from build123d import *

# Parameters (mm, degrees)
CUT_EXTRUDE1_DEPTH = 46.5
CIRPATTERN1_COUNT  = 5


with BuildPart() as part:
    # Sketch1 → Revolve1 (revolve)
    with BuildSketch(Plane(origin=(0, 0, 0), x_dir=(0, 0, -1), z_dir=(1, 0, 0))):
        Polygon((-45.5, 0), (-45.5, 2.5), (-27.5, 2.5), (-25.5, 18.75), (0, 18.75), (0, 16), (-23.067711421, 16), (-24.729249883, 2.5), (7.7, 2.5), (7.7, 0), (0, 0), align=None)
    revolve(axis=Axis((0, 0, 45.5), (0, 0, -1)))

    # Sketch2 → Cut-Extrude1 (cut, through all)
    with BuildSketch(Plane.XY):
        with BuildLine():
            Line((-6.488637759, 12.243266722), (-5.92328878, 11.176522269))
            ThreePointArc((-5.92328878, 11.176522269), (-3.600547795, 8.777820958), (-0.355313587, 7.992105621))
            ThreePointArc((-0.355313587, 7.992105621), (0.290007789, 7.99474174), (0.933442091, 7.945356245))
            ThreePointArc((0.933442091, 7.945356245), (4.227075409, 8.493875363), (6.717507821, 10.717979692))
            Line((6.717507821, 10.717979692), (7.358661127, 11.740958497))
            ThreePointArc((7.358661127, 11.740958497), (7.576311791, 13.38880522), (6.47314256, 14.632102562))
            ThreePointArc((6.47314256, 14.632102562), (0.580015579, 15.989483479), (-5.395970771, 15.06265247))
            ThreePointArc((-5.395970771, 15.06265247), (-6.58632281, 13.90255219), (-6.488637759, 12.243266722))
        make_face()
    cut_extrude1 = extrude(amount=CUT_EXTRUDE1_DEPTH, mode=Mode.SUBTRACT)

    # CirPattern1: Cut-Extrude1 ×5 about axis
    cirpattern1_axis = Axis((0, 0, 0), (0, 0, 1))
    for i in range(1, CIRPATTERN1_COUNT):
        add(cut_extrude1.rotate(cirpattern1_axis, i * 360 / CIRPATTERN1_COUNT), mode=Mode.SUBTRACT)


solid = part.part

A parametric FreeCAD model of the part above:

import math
import FreeCAD as App
import Part
import Sketcher

V = App.Vector

doc = App.newDocument("Part")
body = doc.addObject("PartDesign::Body", "Body")

sketch1 = body.newObject("Sketcher::SketchObject", "Sketch")
sketch1.AttachmentSupport = (doc.getObject("YZ_Plane"), [""])
sketch1.MapMode = "FlatFace"
sketch1.addGeometry(Part.LineSegment(V(2.5, 45.5, 0), V(0, 45.5, 0)), False)
sketch1.addGeometry(Part.LineSegment(V(0, 45.5, 0), V(0, -7.7, 0)), False)
sketch1.addGeometry(Part.LineSegment(V(0, -7.7, 0), V(2.5, -7.7, 0)), False)
sketch1.addGeometry(Part.LineSegment(V(2.5, -7.7, 0), V(2.5, 24.7, 0)), False)
sketch1.addGeometry(Part.LineSegment(V(2.5, 24.7, 0), V(16, 23.1, 0)), False)
sketch1.addGeometry(Part.LineSegment(V(16, 23.1, 0), V(16, 0, 0)), False)
sketch1.addGeometry(Part.LineSegment(V(16, 0, 0), V(18.8, 0, 0)), False)
sketch1.addGeometry(Part.LineSegment(V(18.8, 0, 0), V(18.8, 25.5, 0)), False)
sketch1.addGeometry(Part.LineSegment(V(18.8, 25.5, 0), V(2.5, 27.5, 0)), False)
sketch1.addGeometry(Part.LineSegment(V(2.5, 27.5, 0), V(2.5, 45.5, 0)), False)
sketch1.addConstraint(Sketcher.Constraint("Coincident", 0, 2, 1, 1))
sketch1.addConstraint(Sketcher.Constraint("Coincident", 1, 2, 2, 1))
sketch1.addConstraint(Sketcher.Constraint("Coincident", 2, 2, 3, 1))
sketch1.addConstraint(Sketcher.Constraint("Coincident", 3, 2, 4, 1))
sketch1.addConstraint(Sketcher.Constraint("Coincident", 4, 2, 5, 1))
sketch1.addConstraint(Sketcher.Constraint("Coincident", 5, 2, 6, 1))
sketch1.addConstraint(Sketcher.Constraint("Coincident", 6, 2, 7, 1))
sketch1.addConstraint(Sketcher.Constraint("Coincident", 7, 2, 8, 1))
sketch1.addConstraint(Sketcher.Constraint("Coincident", 8, 2, 9, 1))
sketch1.addConstraint(Sketcher.Constraint("Coincident", 9, 2, 0, 1))
sketch1.addConstraint(Sketcher.Constraint("Horizontal", 0))
sketch1.addConstraint(Sketcher.Constraint("Vertical", 1))
sketch1.addConstraint(Sketcher.Constraint("Horizontal", 2))
sketch1.addConstraint(Sketcher.Constraint("Vertical", 3))
sketch1.addConstraint(Sketcher.Constraint("Vertical", 5))
sketch1.addConstraint(Sketcher.Constraint("Horizontal", 6))
sketch1.addConstraint(Sketcher.Constraint("Vertical", 7))
sketch1.addConstraint(Sketcher.Constraint("Vertical", 9))
sketch1.addConstraint(Sketcher.Constraint("PointOnObject", 0, 2, -2))
sketch1.addConstraint(Sketcher.Constraint("PointOnObject", 5, 2, -1))
sketch1.addConstraint(Sketcher.Constraint("Parallel", 4, 8))
sketch1.addConstraint(Sketcher.Constraint("Vertical", 3, 2, 8, 2))
sketch1.addConstraint(Sketcher.Constraint("DistanceY", 9, 1, 9, 2, 18.0))
sketch1.addConstraint(Sketcher.Constraint("DistanceX", 0, 2, 0, 1, 2.5))
sketch1.addConstraint(Sketcher.Constraint("DistanceY", 1, 2, 1, 1, 53.2))
sketch1.addConstraint(Sketcher.Constraint("DistanceY", 7, 1, 7, 2, 25.5))
sketch1.addConstraint(Sketcher.Constraint("DistanceX", -1, 1, 4, 2, 16.0))
sketch1.addConstraint(Sketcher.Constraint("DistanceY", 7, 2, 0, 2, 20.0))
sketch1.addConstraint(Sketcher.Constraint("DistanceX", 6, 1, 6, 2, 2.75))
sketch1.addConstraint(Sketcher.Constraint("DistanceY", 3, 1, 3, 2, 32.42925))
revolution = body.newObject("PartDesign::Revolution", "Revolution")
revolution.Profile = sketch1
revolution.ReferenceAxis = (sketch1, ["V_Axis"])
revolution.Angle = 360

sketch2 = body.newObject("Sketcher::SketchObject", "Sketch001")
sketch2.AttachmentSupport = (doc.getObject("XY_Plane"), [""])
sketch2.MapMode = "FlatFace"
sketch2.addGeometry(Part.LineSegment(V(-6.488638, 12.243267, 0), V(-5.923289, 11.176522, 0)), False)
sketch2.addGeometry(Part.ArcOfCircle(Part.Circle(V(-0.621799, 13.986185, 0), V(0, 0, 1), 6), math.radians(-152.077483), math.radians(-87.454416)), False)
sketch2.addGeometry(Part.ArcOfCircle(Part.Circle(V(0, 0, 0), V(0, 0, 1), 8), math.radians(83.29945), math.radians(92.545584)), False)
sketch2.addGeometry(Part.ArcOfCircle(Part.Circle(V(1.633524, 13.904373, 0), V(0, 0, 1), 6), math.radians(-96.700549), math.radians(-32.077483)), False)
sketch2.addGeometry(Part.LineSegment(V(6.717508, 10.71798, 0), V(7.358661, 11.740958, 0)), False)
sketch2.addGeometry(Part.ArcOfCircle(Part.Circle(V(5.664, 12.80309, 0), V(0, 0, 1), 2), math.radians(-32.077483), math.radians(66.135728)), False)
sketch2.addGeometry(Part.ArcOfCircle(Part.Circle(V(0, 0, 0), V(0, 0, 1), 16), math.radians(66.135728), math.radians(109.709306)), False)
sketch2.addGeometry(Part.ArcOfCircle(Part.Circle(V(-4.721474, 13.179821, 0), V(0, 0, 1), 2), math.radians(109.709306), math.radians(207.922517)), False)
sketch2.addConstraint(Sketcher.Constraint("Coincident", 0, 2, 1, 1))
sketch2.addConstraint(Sketcher.Constraint("Coincident", 1, 2, 2, 2))
sketch2.addConstraint(Sketcher.Constraint("Coincident", 2, 1, 3, 1))
sketch2.addConstraint(Sketcher.Constraint("Coincident", 3, 2, 4, 1))
sketch2.addConstraint(Sketcher.Constraint("Coincident", 4, 2, 5, 1))
sketch2.addConstraint(Sketcher.Constraint("Coincident", 5, 2, 6, 1))
sketch2.addConstraint(Sketcher.Constraint("Coincident", 6, 2, 7, 1))
sketch2.addConstraint(Sketcher.Constraint("Coincident", 7, 2, 0, 1))
sketch2.addConstraint(Sketcher.Constraint("Coincident", 2, 3, -1, 1))
sketch2.addConstraint(Sketcher.Constraint("Coincident", 6, 3, -1, 1))
sketch2.addConstraint(Sketcher.Constraint("Radius", 1, 6.0))
sketch2.addConstraint(Sketcher.Constraint("Radius", 2, 8.0))
sketch2.addConstraint(Sketcher.Constraint("Radius", 3, 6.0))
sketch2.addConstraint(Sketcher.Constraint("Radius", 5, 2.0))
sketch2.addConstraint(Sketcher.Constraint("Radius", 6, 16.0))
sketch2.addConstraint(Sketcher.Constraint("Radius", 7, 2.0))
sketch2.addConstraint(Sketcher.Constraint("DistanceX", -1, 1, 5, 3, 5.664))
sketch2.addConstraint(Sketcher.Constraint("DistanceX", 7, 3, 3, 3, 6.354998))
sketch2.addConstraint(Sketcher.Constraint("DistanceX", 1, 3, -1, 1, 0.621799))
sketch2.addConstraint(Sketcher.Constraint("DistanceY", 0, 2, 7, 3, 2.003299))
sketch2.addConstraint(Sketcher.Constraint("DistanceY", -1, 1, 7, 3, 13.179821))
sketch2.addConstraint(Sketcher.Constraint("DistanceY", -1, 1, 3, 2, 10.71798))
sketch2.addConstraint(Sketcher.Constraint("DistanceX", -1, 1, 4, 2, 7.358661))
sketch2.addConstraint(Sketcher.Constraint("DistanceX", 6, 2, -1, 1, 5.395971))
sketch2.addConstraint(Sketcher.Constraint("DistanceY", 1, 2, 1, 3, 5.994079))
sketch2.addConstraint(Sketcher.Constraint("DistanceY", 2, 1, 1, 2, 0.046749))
sketch2.addConstraint(Sketcher.Constraint("DistanceX", 5, 2, 4, 2, 0.885519))
sketch2.addConstraint(Sketcher.Constraint("DistanceX", 7, 2, 0, 2, 0.565349))
pocket1 = body.newObject("PartDesign::Pocket", "Pocket")
pocket1.Profile = sketch2
pocket1.Type = "ThroughAll"
pocket1.Reversed = True
doc.recompute()

polarpattern = body.newObject("PartDesign::PolarPattern", "PolarPattern")
polarpattern.Originals = [pocket1]
polarpattern.Axis = (doc.getObject("Z_Axis"), [""])
polarpattern.Angle = 360
polarpattern.Occurrences = 5
body.Tip = polarpattern

doc.recompute()
